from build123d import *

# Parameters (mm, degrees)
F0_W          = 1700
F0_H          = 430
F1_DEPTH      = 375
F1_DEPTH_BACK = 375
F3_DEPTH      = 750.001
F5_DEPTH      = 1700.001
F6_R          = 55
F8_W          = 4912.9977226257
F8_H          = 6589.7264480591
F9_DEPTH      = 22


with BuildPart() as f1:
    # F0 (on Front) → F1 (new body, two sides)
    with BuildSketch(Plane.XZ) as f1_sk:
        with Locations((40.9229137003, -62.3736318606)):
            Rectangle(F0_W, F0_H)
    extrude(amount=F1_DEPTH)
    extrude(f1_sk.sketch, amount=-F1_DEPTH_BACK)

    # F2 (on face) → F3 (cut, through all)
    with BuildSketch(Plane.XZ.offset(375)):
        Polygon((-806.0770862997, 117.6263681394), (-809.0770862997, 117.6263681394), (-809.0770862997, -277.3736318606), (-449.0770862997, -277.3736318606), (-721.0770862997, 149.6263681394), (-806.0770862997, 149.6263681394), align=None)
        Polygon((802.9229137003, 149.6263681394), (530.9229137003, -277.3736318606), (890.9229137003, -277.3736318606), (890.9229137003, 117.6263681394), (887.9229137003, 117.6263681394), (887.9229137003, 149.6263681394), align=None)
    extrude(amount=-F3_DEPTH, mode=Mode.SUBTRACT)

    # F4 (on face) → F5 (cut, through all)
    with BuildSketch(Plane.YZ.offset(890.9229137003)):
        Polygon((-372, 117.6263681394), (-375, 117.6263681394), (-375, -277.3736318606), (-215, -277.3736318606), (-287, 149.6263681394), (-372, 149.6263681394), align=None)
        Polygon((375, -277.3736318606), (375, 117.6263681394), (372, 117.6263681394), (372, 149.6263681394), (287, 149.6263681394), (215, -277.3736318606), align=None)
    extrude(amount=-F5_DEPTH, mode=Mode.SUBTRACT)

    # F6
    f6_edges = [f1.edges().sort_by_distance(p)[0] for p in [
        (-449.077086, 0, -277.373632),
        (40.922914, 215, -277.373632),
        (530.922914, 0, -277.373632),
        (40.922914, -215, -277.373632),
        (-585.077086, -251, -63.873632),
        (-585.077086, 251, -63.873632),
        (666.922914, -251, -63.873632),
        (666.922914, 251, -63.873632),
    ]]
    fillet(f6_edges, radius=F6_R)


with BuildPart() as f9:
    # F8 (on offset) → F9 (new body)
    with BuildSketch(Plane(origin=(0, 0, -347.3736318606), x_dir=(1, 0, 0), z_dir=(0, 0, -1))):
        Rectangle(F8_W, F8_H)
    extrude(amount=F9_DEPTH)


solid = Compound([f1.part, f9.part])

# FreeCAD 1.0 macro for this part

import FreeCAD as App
import Part
import Sketcher


def edges_at(feature, points):
    """Names of the edges that pass closest to the given points."""
    edges = feature.Shape.Edges
    near = lambda p: min(range(len(edges)), key=lambda i: edges[i].distToShape(Part.Vertex(*p))[0])
    return sorted({f"Edge{near(p) + 1}" for p in points})


def add_polygon(sketch, points):
    """Adds a closed chain of lines whose ends are joined by coincident constraints."""
    first, n = sketch.GeometryCount, len(points)
    for a, b in zip(points, points[1:] + points[:1]):
        sketch.addGeometry(Part.LineSegment(App.Vector(*a, 0), App.Vector(*b, 0)), False)
    for i in range(n):
        sketch.addConstraint(Sketcher.Constraint("Coincident", first + i, 2, first + (i + 1) % n, 1))

doc = App.newDocument("Part")
params = doc.addObject("Spreadsheet::Sheet", "Params")
for row, (alias, value) in enumerate([
    ("sketch1_width", "1700 mm"),
    ("sketch1_height", "430 mm"),
    ("pad1_length", "375 mm"),
    ("pad1_length2", "375 mm"),
    ("sketch2_width", "3 mm"),
    ("sketch2_width2", "360 mm"),
    ("sketch2_width3", "85 mm"),
    ("sketch2_height", "395 mm"),
    ("sketch2_height2", "32 mm"),
    ("sketch3_width", "3 mm"),
    ("sketch3_width2", "160 mm"),
    ("sketch3_width3", "85 mm"),
    ("sketch3_height", "395 mm"),
    ("sketch3_height2", "32 mm"),
    ("fillet_radius", "55 mm"),
    ("pad2_length", "22 mm"),
], start=1):
    params.set(f"A{row}", alias)
    params.set(f"B{row}", "=" + value)
    params.setAlias(f"B{row}", alias)

body = doc.addObject("PartDesign::Body", "Body")

# Sketch on XZ plane
sketch1 = body.newObject("Sketcher::SketchObject", "Sketch")
sketch1.AttachmentSupport = (doc.getObject("XZ_Plane"), [""])
sketch1.MapMode = "FlatFace"
add_polygon(sketch1, [(-809.077086, 152.626368), (-809.077086, -277.373632), (890.922914, -277.373632), (890.922914, 152.626368)])  # lines 0-3
sketch1.addConstraint(Sketcher.Constraint("Vertical", 0))
sketch1.addConstraint(Sketcher.Constraint("Horizontal", 1))
sketch1.addConstraint(Sketcher.Constraint("Vertical", 2))
sketch1.addConstraint(Sketcher.Constraint("Horizontal", 3))
sketch1.addConstraint(Sketcher.Constraint("DistanceX", 1, 1, 1, 2, 1700.0))
sketch1.addConstraint(Sketcher.Constraint("DistanceY", 0, 2, 0, 1, 430.0))
sketch1.addConstraint(Sketcher.Constraint("DistanceY", 0, 2, -1, 1, 277.373632))
sketch1.addConstraint(Sketcher.Constraint("DistanceX", 0, 2, -1, 1, 809.077086))
sketch1.setExpression("Constraints[8]", "Params.sketch1_width")
sketch1.setExpression("Constraints[9]", "Params.sketch1_height")
pad1 = body.newObject("PartDesign::Pad", "Pad")
pad1.Profile = sketch1
pad1.Type = "TwoLengths"
pad1.setExpression("Length", "Params.pad1_length")
pad1.setExpression("Length2", "Params.pad1_length2")

# Sketch on XZ plane
sketch2 = body.newObject("Sketcher::SketchObject", "Sketch001")
sketch2.AttachmentSupport = (doc.getObject("XZ_Plane"), [""])
sketch2.MapMode = "FlatFace"
sketch2.AttachmentOffset = App.Placement(App.Vector(0, 0, 375), App.Rotation())
add_polygon(sketch2, [(-806.077086, 117.626368), (-809.077086, 117.626368), (-809.077086, -277.373632), (-449.077086, -277.373632), (-721.077086, 149.626368), (-806.077086, 149.626368)])  # lines 0-5
add_polygon(sketch2, [(802.922914, 149.626368), (530.922914, -277.373632), (890.922914, -277.373632), (890.922914, 117.626368), (887.922914, 117.626368), (887.922914, 149.626368)])  # lines 6-11
sketch2.addConstraint(Sketcher.Constraint("Horizontal", 0))
sketch2.addConstraint(Sketcher.Constraint("Vertical", 1))
sketch2.addConstraint(Sketcher.Constraint("Horizontal", 2))
sketch2.addConstraint(Sketcher.Constraint("Horizontal", 4))
sketch2.addConstraint(Sketcher.Constraint("Vertical", 5))
sketch2.addConstraint(Sketcher.Constraint("Horizontal", 7))
sketch2.addConstraint(Sketcher.Constraint("Vertical", 8))
sketch2.addConstraint(Sketcher.Constraint("Horizontal", 9))
sketch2.addConstraint(Sketcher.Constraint("Vertical", 10))
sketch2.addConstraint(Sketcher.Constraint("Horizontal", 11))
sketch2.addConstraint(Sketcher.Constraint("Horizontal", 2, 2, 6, 2))
sketch2.addConstraint(Sketcher.Constraint("Horizontal", 5, 2, 8, 2))
sketch2.addConstraint(Sketcher.Constraint("Horizontal", 4, 2, 10, 2))
sketch2.addConstraint(Sketcher.Constraint("Equal", 2, 7))
sketch2.addConstraint(Sketcher.Constraint("Equal", 0, 9))
sketch2.addConstraint(Sketcher.Constraint("Equal", 4, 11))
sketch2.addConstraint(Sketcher.Constraint("DistanceX", 0, 2, 0, 1, 3.0))
sketch2.addConstraint(Sketcher.Constraint("DistanceX", 2, 1, 2, 2, 360.0))
sketch2.addConstraint(Sketcher.Constraint("DistanceX", 4, 2, 4, 1, 85.0))
sketch2.addConstraint(Sketcher.Constraint("DistanceY", 1, 2, 1, 1, 395.0))
sketch2.addConstraint(Sketcher.Constraint("DistanceY", 5, 2, 5, 1, 32.0))
sketch2.addConstraint(Sketcher.Constraint("DistanceX", 2, 2, 6, 2, 980.0))
sketch2.addConstraint(Sketcher.Constraint("DistanceY", -1, 1, 0, 2, 117.626368))
sketch2.addConstraint(Sketcher.Constraint("DistanceX", 0, 2, -1, 1, 809.077086))
sketch2.setExpression("Constraints[28]", "Params.sketch2_width")
sketch2.setExpression("Constraints[29]", "Params.sketch2_width2")
sketch2.setExpression("Constraints[30]", "Params.sketch2_width3")
sketch2.setExpression("Constraints[31]", "Params.sketch2_height")
sketch2.setExpression("Constraints[32]", "Params.sketch2_height2")
pocket1 = body.newObject("PartDesign::Pocket", "Pocket")
pocket1.Profile = sketch2
pocket1.Type = "ThroughAll"

# Sketch on YZ plane
sketch3 = body.newObject("Sketcher::SketchObject", "Sketch002")
sketch3.AttachmentSupport = (doc.getObject("YZ_Plane"), [""])
sketch3.MapMode = "FlatFace"
sketch3.AttachmentOffset = App.Placement(App.Vector(0, 0, 890.922914), App.Rotation())
add_polygon(sketch3, [(-372, 117.626368), (-375, 117.626368), (-375, -277.373632), (-215, -277.373632), (-287, 149.626368), (-372, 149.626368)])  # lines 0-5
add_polygon(sketch3, [(375, -277.373632), (375, 117.626368), (372, 117.626368), (372, 149.626368), (287, 149.626368), (215, -277.373632)])  # lines 6-11
sketch3.addConstraint(Sketcher.Constraint("Horizontal", 0))
sketch3.addConstraint(Sketcher.Constraint("Vertical", 1))
sketch3.addConstraint(Sketcher.Constraint("Horizontal", 2))
sketch3.addConstraint(Sketcher.Constraint("Horizontal", 4))
sketch3.addConstraint(Sketcher.Constraint("Vertical", 5))
sketch3.addConstraint(Sketcher.Constraint("Vertical", 6))
sketch3.addConstraint(Sketcher.Constraint("Horizontal", 7))
sketch3.addConstraint(Sketcher.Constraint("Vertical", 8))
sketch3.addConstraint(Sketcher.Constraint("Horizontal", 9))
sketch3.addConstraint(Sketcher.Constraint("Horizontal", 11))
sketch3.addConstraint(Sketcher.Constraint("Symmetric", 0, 2, 6, 2, -2))
sketch3.addConstraint(Sketcher.Constraint("Symmetric", 4, 2, 8, 2, -2))
sketch3.addConstraint(Sketcher.Constraint("Symmetric", 2, 2, 10, 2, -2))
sketch3.addConstraint(Sketcher.Constraint("Equal", 4, 9))
sketch3.addConstraint(Sketcher.Constraint("DistanceX", 0, 2, 0, 1, 3.0))
sketch3.addConstraint(Sketcher.Constraint("DistanceX", 2, 1, 2, 2, 160.0))
sketch3.addConstraint(Sketcher.Constraint("DistanceX", 4, 2, 4, 1, 85.0))
sketch3.addConstraint(Sketcher.Constraint("DistanceY", 1, 2, 1, 1, 395.0))
sketch3.addConstraint(Sketcher.Constraint("DistanceY", 5, 2, 5, 1, 32.0))
sketch3.addConstraint(Sketcher.Constraint("DistanceX", 0, 2, -1, 1, 375.0))
sketch3.addConstraint(Sketcher.Constraint("DistanceY", -1, 1, 0, 2, 117.626368))
sketch3.setExpression("Constraints[26]", "Params.sketch3_width")
sketch3.setExpression("Constraints[27]", "Params.sketch3_width2")
sketch3.setExpression("Constraints[28]", "Params.sketch3_width3")
sketch3.setExpression("Constraints[29]", "Params.sketch3_height")
sketch3.setExpression("Constraints[30]", "Params.sketch3_height2")
pocket2 = body.newObject("PartDesign::Pocket", "Pocket001")
pocket2.Profile = sketch3
pocket2.Type = "ThroughAll"
doc.recompute()

fillet = body.newObject("PartDesign::Fillet", "Fillet")
fillet.Base = (pocket2, edges_at(pocket2, [
    (-449.077, 0, -277.374),
    (40.923, 215, -277.374),
    (530.923, 0, -277.374),
    (40.923, -215, -277.374),
    (-585.077, -251, -63.874),
    (-585.077, 251, -63.874),
    (666.923, -251, -63.874),
    (666.923, 251, -63.874),
]))
fillet.setExpression("Radius", "Params.fillet_radius")
body2 = doc.addObject("PartDesign::Body", "Body001")

# Sketch on XY plane
sketch4 = body2.newObject("Sketcher::SketchObject", "Sketch003")
sketch4.AttachmentSupport = (doc.getObject("XY_Plane001"), [""])
sketch4.MapMode = "FlatFace"
sketch4.AttachmentOffset = App.Placement(App.Vector(0, 0, -347.373632), App.Rotation())
add_polygon(sketch4, [(-2456.498861, -3294.863224), (-2456.498861, 3294.863224), (2456.498861, 3294.863224), (2456.498861, -3294.863224)])  # lines 0-3
sketch4.addConstraint(Sketcher.Constraint("Vertical", 0))
sketch4.addConstraint(Sketcher.Constraint("Horizontal", 1))
sketch4.addConstraint(Sketcher.Constraint("Vertical", 2))
sketch4.addConstraint(Sketcher.Constraint("Horizontal", 3))
sketch4.addConstraint(Sketcher.Constraint("Symmetric", 0, 2, 2, 2, -1, 1))
sketch4.addConstraint(Sketcher.Constraint("DistanceY", 0, 1, 0, 2, 6589.726448))
sketch4.addConstraint(Sketcher.Constraint("DistanceX", 1, 1, 1, 2, 4912.997723))
pad2 = body2.newObject("PartDesign::Pad", "Pad001")
pad2.Profile = sketch4
pad2.setExpression("Length", "Params.pad2_length")
pad2.Reversed = True

doc.recompute()
